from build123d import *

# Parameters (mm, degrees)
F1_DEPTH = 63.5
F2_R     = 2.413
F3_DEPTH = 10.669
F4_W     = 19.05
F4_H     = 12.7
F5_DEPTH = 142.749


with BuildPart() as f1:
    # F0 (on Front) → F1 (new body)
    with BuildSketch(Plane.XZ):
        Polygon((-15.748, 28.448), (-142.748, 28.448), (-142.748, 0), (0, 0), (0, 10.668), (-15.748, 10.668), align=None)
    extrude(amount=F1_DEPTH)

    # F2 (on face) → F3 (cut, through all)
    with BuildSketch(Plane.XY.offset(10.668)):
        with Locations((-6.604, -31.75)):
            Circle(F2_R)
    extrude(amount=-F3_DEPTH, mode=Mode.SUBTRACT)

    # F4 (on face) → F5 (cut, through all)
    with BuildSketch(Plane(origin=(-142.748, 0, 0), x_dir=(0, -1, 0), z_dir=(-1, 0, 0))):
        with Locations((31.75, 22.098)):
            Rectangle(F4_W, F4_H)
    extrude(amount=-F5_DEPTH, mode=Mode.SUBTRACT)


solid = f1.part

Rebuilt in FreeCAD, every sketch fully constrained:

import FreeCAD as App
import Part
import Sketcher
Q = App.Units.Quantity

doc = App.newDocument("Part")
body = doc.addObject("PartDesign::Body", "Body")

# Sketch on XZ plane
sketch1 = body.newObject("Sketcher::SketchObject", "Sketch")
sketch1.AttachmentSupport = (doc.getObject("XZ_Plane"), [""])
sketch1.MapMode = "FlatFace"
sketch1.addGeometry([
    Part.LineSegment(App.Vector(-16, 28, 0), App.Vector(-143, 28, 0)),  # 0
    Part.LineSegment(App.Vector(-143, 28, 0), App.Vector(-143, 0, 0)),  # 1
    Part.LineSegment(App.Vector(-143, 0, 0), App.Vector(0, 0, 0)),  # 2
    Part.LineSegment(App.Vector(0, 0, 0), App.Vector(0, 11, 0)),  # 3
    Part.LineSegment(App.Vector(0, 11, 0), App.Vector(-16, 11, 0)),  # 4
    Part.LineSegment(App.Vector(-16, 11, 0), App.Vector(-16, 28, 0)),  # 5
], False)
sketch1.addConstraint([
    Sketcher.Constraint("Coincident", 0, 2, 1, 1),
    Sketcher.Constraint("Coincident", 1, 2, 2, 1),
    Sketcher.Constraint("Coincident", 2, 2, 3, 1),
    Sketcher.Constraint("Coincident", 3, 2, 4, 1),
    Sketcher.Constraint("Coincident", 4, 2, 5, 1),
    Sketcher.Constraint("Coincident", 5, 2, 0, 1),
    Sketcher.Constraint("Horizontal", 0),
    Sketcher.Constraint("Vertical", 1),
    Sketcher.Constraint("Horizontal", 2),
    Sketcher.Constraint("Vertical", 3),
    Sketcher.Constraint("Horizontal", 4),
    Sketcher.Constraint("Vertical", 5),
    Sketcher.Constraint("Coincident", 2, 2, -1, 1),
    Sketcher.Constraint("DistanceX", 0, 2, 0, 1, Q("5 in")),
    Sketcher.Constraint("DistanceY", 5, 1, 5, 2, Q("0.7 in")),
    Sketcher.Constraint("DistanceX", 2, 1, 2, 2, Q("5.62 in")),
    Sketcher.Constraint("DistanceY", 1, 2, 1, 1, Q("1.12 in")),
])
pad1 = body.newObject("PartDesign::Pad", "Pad")
pad1.Profile = sketch1
pad1.Length = Q("2.5 in")

# Sketch on XY plane
sketch2 = body.newObject("Sketcher::SketchObject", "Sketch001")
sketch2.AttachmentSupport = (doc.getObject("XY_Plane"), [""])
sketch2.MapMode = "FlatFace"
sketch2.AttachmentOffset = App.Placement(App.Vector(0, 0, 0.42 * 25.4), App.Rotation())
sketch2.addGeometry(Part.Circle(App.Vector(-6.6, -31.8, 0), App.Vector(0, 0, 1), 2.4), False)
sketch2.addConstraint([
    Sketcher.Constraint("Diameter", 0, Q("0.19 in")),
    Sketcher.Constraint("DistanceX", 0, 3, -1, 1, Q("0.26 in")),
    Sketcher.Constraint("DistanceY", 0, 3, -1, 1, Q("1.25 in")),
])
pocket1 = body.newObject("PartDesign::Pocket", "Pocket")
pocket1.Profile = sketch2
pocket1.Type = "ThroughAll"

# Sketch on YZ plane
sketch3 = body.newObject("Sketcher::SketchObject", "Sketch002")
sketch3.AttachmentSupport = (doc.getObject("YZ_Plane"), [""])
sketch3.MapMode = "FlatFace"
sketch3.AttachmentOffset = App.Placement(App.Vector(0, 0, -5.62 * 25.4), App.Rotation())
sketch3.addGeometry([
    Part.LineSegment(App.Vector(-22, 28, 0), App.Vector(-22, 16, 0)),
    Part.LineSegment(App.Vector(-22, 16, 0), App.Vector(-41, 16, 0)),
    Part.LineSegment(App.Vector(-41, 16, 0), App.Vector(-41, 28, 0)),
    Part.LineSegment(App.Vector(-41, 28, 0), App.Vector(-22, 28, 0)),
], False)
sketch3.addConstraint([
    Sketcher.Constraint("Coincident", 0, 2, 1, 1),
    Sketcher.Constraint("Coincident", 1, 2, 2, 1),
    Sketcher.Constraint("Coincident", 2, 2, 3, 1),
    Sketcher.Constraint("Coincident", 3, 2, 0, 1),
    Sketcher.Constraint("Vertical", 0),
    Sketcher.Constraint("Horizontal", 1),
    Sketcher.Constraint("Vertical", 2),
    Sketcher.Constraint("Horizontal", 3),
    Sketcher.Constraint("DistanceY", 0, 2, 0, 1, Q("0.5 in")),
    Sketcher.Constraint("DistanceX", 1, 2, 1, 1, Q("0.75 in")),
    Sketcher.Constraint("DistanceY", -1, 1, 0, 2, Q("0.62 in")),
    Sketcher.Constraint("DistanceX", 0, 2, -1, 1, Q("0.875 in")),
])
pocket2 = body.newObject("PartDesign::Pocket", "Pocket001")
pocket2.Profile = sketch3
pocket2.Type = "ThroughAll"
pocket2.Reversed = True

doc.recompute()
